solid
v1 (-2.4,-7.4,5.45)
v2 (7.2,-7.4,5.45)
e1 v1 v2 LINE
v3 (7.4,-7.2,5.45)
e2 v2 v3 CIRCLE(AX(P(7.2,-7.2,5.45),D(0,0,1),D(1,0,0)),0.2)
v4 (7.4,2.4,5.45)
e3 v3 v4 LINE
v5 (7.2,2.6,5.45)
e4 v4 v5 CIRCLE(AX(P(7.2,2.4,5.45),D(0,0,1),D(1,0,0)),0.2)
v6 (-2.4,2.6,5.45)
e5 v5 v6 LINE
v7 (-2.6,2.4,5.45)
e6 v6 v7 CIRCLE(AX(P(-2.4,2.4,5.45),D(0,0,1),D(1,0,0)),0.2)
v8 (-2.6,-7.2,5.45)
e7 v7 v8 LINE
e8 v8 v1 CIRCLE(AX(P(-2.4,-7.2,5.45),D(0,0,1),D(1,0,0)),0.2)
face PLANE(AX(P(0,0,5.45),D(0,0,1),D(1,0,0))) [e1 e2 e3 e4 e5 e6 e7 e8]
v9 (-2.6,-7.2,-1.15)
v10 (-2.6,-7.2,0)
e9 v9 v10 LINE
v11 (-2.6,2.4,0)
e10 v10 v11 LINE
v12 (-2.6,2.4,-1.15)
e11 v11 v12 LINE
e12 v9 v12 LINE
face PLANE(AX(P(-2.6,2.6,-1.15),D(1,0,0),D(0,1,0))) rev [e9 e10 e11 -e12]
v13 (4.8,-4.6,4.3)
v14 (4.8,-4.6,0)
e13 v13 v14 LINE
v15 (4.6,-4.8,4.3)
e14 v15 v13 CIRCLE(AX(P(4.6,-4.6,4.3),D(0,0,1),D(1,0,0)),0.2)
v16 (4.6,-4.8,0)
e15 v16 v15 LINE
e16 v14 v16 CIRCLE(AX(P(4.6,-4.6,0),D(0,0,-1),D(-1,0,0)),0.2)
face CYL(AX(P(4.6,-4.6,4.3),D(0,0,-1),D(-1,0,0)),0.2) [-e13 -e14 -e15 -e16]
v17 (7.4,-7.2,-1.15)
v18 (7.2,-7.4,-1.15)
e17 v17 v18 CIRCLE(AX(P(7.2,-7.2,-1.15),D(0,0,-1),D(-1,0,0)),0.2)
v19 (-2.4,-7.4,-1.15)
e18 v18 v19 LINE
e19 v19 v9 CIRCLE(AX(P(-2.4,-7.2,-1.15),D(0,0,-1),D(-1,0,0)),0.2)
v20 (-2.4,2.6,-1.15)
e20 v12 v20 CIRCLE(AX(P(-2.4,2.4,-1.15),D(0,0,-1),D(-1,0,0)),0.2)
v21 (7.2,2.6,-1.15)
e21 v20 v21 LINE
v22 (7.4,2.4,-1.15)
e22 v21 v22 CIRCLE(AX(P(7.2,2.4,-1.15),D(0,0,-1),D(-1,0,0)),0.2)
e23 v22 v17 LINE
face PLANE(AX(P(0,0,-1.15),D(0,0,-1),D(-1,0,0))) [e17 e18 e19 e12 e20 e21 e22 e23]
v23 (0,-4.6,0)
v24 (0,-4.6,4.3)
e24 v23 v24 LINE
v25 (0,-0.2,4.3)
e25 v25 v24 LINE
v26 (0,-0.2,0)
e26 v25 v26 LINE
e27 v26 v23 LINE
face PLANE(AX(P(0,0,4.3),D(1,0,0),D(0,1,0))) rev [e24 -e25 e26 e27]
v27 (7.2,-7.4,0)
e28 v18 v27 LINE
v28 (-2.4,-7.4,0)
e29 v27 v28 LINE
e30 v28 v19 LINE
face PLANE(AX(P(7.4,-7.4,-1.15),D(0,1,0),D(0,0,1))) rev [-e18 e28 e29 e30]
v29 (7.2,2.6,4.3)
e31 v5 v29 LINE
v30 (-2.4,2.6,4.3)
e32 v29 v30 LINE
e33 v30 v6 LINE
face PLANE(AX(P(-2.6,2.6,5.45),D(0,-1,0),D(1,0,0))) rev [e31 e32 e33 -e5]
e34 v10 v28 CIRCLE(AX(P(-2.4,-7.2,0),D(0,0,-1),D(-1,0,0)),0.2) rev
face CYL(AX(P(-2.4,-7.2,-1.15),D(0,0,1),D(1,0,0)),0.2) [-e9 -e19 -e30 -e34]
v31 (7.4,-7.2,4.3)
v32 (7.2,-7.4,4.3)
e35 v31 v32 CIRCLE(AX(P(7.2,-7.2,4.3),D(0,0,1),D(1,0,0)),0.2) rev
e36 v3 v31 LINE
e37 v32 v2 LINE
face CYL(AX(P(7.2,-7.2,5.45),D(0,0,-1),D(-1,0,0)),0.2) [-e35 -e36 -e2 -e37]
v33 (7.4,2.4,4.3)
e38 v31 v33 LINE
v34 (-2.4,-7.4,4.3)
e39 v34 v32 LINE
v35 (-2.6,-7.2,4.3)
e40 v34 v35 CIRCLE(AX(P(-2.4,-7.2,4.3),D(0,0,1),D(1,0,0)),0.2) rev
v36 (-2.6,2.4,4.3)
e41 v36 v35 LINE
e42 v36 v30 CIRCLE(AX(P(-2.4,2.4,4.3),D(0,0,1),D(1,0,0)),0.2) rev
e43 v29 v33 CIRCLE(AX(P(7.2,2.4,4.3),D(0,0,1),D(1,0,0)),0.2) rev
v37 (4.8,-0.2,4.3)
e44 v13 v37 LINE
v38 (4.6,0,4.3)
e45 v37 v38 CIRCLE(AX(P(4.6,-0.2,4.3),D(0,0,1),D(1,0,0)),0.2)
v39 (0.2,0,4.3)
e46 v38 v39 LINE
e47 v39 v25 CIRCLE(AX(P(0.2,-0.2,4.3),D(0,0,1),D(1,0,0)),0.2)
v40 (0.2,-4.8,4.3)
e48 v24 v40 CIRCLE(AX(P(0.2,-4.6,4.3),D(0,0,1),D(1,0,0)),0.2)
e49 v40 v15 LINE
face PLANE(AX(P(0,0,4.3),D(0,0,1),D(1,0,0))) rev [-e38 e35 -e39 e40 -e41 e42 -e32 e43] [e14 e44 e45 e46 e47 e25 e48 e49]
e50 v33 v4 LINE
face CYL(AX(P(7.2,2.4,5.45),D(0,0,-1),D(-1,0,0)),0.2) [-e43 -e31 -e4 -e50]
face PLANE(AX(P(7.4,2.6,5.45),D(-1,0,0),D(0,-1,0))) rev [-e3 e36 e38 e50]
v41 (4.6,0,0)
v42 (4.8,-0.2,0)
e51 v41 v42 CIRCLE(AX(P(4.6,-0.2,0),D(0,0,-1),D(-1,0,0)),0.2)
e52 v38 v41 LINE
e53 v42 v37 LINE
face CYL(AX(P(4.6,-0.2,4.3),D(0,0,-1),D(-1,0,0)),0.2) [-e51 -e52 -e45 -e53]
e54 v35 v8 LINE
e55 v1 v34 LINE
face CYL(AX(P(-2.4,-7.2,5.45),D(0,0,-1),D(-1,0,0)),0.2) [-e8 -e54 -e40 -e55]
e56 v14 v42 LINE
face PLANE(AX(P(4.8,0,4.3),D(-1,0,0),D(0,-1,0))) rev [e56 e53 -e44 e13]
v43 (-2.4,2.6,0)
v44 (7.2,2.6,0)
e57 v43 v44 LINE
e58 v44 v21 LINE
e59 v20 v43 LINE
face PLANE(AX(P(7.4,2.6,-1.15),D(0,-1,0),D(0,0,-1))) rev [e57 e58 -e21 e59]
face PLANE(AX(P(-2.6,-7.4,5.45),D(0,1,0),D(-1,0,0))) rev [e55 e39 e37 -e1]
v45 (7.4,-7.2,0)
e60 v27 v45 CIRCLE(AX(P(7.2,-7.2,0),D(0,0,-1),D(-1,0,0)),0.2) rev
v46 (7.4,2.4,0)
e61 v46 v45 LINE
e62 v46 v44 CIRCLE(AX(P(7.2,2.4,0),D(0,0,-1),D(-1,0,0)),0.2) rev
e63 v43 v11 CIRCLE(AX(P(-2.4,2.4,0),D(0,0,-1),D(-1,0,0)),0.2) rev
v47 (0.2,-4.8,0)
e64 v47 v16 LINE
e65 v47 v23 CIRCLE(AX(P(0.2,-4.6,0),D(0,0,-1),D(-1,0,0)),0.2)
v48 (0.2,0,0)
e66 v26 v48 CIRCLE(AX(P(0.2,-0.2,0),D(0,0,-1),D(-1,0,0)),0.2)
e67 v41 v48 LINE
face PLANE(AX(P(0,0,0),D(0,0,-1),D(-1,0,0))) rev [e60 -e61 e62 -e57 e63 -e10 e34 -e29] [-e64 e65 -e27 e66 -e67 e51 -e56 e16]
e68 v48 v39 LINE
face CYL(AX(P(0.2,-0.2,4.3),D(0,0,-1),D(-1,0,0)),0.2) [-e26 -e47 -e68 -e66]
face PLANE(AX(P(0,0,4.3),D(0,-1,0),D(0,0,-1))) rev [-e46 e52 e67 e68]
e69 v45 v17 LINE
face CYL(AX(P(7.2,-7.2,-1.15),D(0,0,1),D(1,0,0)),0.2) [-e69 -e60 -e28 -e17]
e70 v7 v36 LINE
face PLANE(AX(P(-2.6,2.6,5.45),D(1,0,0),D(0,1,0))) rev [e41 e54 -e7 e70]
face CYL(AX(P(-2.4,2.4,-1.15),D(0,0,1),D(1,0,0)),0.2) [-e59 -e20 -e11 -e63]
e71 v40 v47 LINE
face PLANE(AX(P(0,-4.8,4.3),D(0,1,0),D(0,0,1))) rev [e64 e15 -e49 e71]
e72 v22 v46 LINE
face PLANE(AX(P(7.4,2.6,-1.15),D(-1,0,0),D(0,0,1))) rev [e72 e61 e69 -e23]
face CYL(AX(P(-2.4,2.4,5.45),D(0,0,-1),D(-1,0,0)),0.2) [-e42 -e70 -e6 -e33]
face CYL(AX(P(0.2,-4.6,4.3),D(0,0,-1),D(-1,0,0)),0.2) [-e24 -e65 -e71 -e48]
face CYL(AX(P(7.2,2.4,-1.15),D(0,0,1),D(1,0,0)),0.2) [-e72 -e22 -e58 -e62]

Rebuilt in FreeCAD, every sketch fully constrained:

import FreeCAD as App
import Part
import Sketcher

V = App.Vector


def edges_at(feature, points):
    """Names of the edges that pass closest to the given points."""
    edges = feature.Shape.Edges
    near = lambda p: min(range(len(edges)), key=lambda i: edges[i].distToShape(Part.Vertex(*p))[0])
    return sorted({f"Edge{near(p) + 1}" for p in points})

doc = App.newDocument("Part")
body = doc.addObject("PartDesign::Body", "Body")

# Sketch on XY plane
sketch1 = body.newObject("Sketcher::SketchObject", "Sketch")
sketch1.AttachmentSupport = (doc.getObject("XY_Plane"), [""])
sketch1.MapMode = "FlatFace"
sketch1.addGeometry([
    Part.LineSegment(V(0, 0, 0), V(0, -4.8, 0)),
    Part.LineSegment(V(0, -4.8, 0), V(4.8, -4.8, 0)),
    Part.LineSegment(V(4.8, -4.8, 0), V(4.8, 0, 0)),
    Part.LineSegment(V(4.8, 0, 0), V(0, 0, 0)),
], False)
sketch1.addConstraint([
    Sketcher.Constraint("Coincident", 0, 2, 1, 1),
    Sketcher.Constraint("Coincident", 1, 2, 2, 1),
    Sketcher.Constraint("Coincident", 2, 2, 3, 1),
    Sketcher.Constraint("Coincident", 3, 2, 0, 1),
    Sketcher.Constraint("Vertical", 0),
    Sketcher.Constraint("Horizontal", 1),
    Sketcher.Constraint("Vertical", 2),
    Sketcher.Constraint("Horizontal", 3),
    Sketcher.Constraint("Coincident", 3, 2, -1, 1),
    Sketcher.Constraint("Equal", 3, 0),
    Sketcher.Constraint("DistanceX", 1, 1, 1, 2, 4.8),
])
pad1 = body.newObject("PartDesign::Pad", "Pad")
pad1.Profile = sketch1
pad1.Length = 4.3

# Sketch on XY plane
sketch2 = body.newObject("Sketcher::SketchObject", "Sketch001")
sketch2.AttachmentSupport = (doc.getObject("XY_Plane"), [""])
sketch2.MapMode = "FlatFace"
sketch2.AttachmentOffset = App.Placement(V(0, 0, 4.3), App.Rotation())
sketch2.addGeometry([
    Part.LineSegment(V(-3, 3, 0), V(-3, -7, 0)),
    Part.LineSegment(V(-3, -7, 0), V(7, -7, 0)),
    Part.LineSegment(V(7, -7, 0), V(7, 3, 0)),
    Part.LineSegment(V(7, 3, 0), V(-3, 3, 0)),
], False)
sketch2.addConstraint([
    Sketcher.Constraint("Coincident", 0, 2, 1, 1),
    Sketcher.Constraint("Coincident", 1, 2, 2, 1),
    Sketcher.Constraint("Coincident", 2, 2, 3, 1),
    Sketcher.Constraint("Coincident", 3, 2, 0, 1),
    Sketcher.Constraint("Vertical", 0),
    Sketcher.Constraint("Horizontal", 1),
    Sketcher.Constraint("Vertical", 2),
    Sketcher.Constraint("Horizontal", 3),
    Sketcher.Constraint("Equal", 3, 0),
    Sketcher.Constraint("DistanceX", 1, 1, 1, 2, 10.0),
    Sketcher.Constraint("DistanceX", 0, 2, -1, 1, 2.6),
    Sketcher.Constraint("DistanceY", 0, 2, -1, 1, 7.4),
])
pad2 = body.newObject("PartDesign::Pad", "Pad001")
pad2.Profile = sketch2
pad2.Length = 1.15

# Sketch on XY plane
sketch3 = body.newObject("Sketcher::SketchObject", "Sketch002")
sketch3.AttachmentSupport = (doc.getObject("XY_Plane"), [""])
sketch3.MapMode = "FlatFace"
sketch3.addGeometry([
    Part.LineSegment(V(7, 3, 0), V(7, -7, 0)),
    Part.LineSegment(V(7, -7, 0), V(-3, -7, 0)),
    Part.LineSegment(V(-3, -7, 0), V(-3, 3, 0)),
    Part.LineSegment(V(-3, 3, 0), V(7, 3, 0)),
], False)
sketch3.addConstraint([
    Sketcher.Constraint("Coincident", 0, 2, 1, 1),
    Sketcher.Constraint("Coincident", 1, 2, 2, 1),
    Sketcher.Constraint("Coincident", 2, 2, 3, 1),
    Sketcher.Constraint("Coincident", 3, 2, 0, 1),
    Sketcher.Constraint("Vertical", 0),
    Sketcher.Constraint("Horizontal", 1),
    Sketcher.Constraint("Vertical", 2),
    Sketcher.Constraint("Horizontal", 3),
    Sketcher.Constraint("Equal", 3, 0),
    Sketcher.Constraint("DistanceX", 1, 2, 1, 1, 10.0),
    Sketcher.Constraint("DistanceX", -1, 1, 0, 2, 7.4),
    Sketcher.Constraint("DistanceY", 0, 2, -1, 1, 7.4),
])
pad3 = body.newObject("PartDesign::Pad", "Pad002")
pad3.Profile = sketch3
pad3.Length = 1.15
pad3.Reversed = True
doc.recompute()

fillet = body.newObject("PartDesign::Fillet", "Fillet")
fillet.Base = (pad3, edges_at(pad3, [
    (-2.6, 2.6, 4.875),
    (-2.6, -7.4, 4.875),
    (7.4, -7.4, 4.875),
    (7.4, 2.6, 4.875),
    (7.4, 2.6, -0.575),
    (7.4, -7.4, -0.575),
    (-2.6, -7.4, -0.575),
    (-2.6, 2.6, -0.575),
    (0, 0, 2.15),
    (4.8, 0, 2.15),
    (4.8, -4.8, 2.15),
    (0, -4.8, 2.15),
]))
fillet.Radius = 0.2

doc.recompute()
